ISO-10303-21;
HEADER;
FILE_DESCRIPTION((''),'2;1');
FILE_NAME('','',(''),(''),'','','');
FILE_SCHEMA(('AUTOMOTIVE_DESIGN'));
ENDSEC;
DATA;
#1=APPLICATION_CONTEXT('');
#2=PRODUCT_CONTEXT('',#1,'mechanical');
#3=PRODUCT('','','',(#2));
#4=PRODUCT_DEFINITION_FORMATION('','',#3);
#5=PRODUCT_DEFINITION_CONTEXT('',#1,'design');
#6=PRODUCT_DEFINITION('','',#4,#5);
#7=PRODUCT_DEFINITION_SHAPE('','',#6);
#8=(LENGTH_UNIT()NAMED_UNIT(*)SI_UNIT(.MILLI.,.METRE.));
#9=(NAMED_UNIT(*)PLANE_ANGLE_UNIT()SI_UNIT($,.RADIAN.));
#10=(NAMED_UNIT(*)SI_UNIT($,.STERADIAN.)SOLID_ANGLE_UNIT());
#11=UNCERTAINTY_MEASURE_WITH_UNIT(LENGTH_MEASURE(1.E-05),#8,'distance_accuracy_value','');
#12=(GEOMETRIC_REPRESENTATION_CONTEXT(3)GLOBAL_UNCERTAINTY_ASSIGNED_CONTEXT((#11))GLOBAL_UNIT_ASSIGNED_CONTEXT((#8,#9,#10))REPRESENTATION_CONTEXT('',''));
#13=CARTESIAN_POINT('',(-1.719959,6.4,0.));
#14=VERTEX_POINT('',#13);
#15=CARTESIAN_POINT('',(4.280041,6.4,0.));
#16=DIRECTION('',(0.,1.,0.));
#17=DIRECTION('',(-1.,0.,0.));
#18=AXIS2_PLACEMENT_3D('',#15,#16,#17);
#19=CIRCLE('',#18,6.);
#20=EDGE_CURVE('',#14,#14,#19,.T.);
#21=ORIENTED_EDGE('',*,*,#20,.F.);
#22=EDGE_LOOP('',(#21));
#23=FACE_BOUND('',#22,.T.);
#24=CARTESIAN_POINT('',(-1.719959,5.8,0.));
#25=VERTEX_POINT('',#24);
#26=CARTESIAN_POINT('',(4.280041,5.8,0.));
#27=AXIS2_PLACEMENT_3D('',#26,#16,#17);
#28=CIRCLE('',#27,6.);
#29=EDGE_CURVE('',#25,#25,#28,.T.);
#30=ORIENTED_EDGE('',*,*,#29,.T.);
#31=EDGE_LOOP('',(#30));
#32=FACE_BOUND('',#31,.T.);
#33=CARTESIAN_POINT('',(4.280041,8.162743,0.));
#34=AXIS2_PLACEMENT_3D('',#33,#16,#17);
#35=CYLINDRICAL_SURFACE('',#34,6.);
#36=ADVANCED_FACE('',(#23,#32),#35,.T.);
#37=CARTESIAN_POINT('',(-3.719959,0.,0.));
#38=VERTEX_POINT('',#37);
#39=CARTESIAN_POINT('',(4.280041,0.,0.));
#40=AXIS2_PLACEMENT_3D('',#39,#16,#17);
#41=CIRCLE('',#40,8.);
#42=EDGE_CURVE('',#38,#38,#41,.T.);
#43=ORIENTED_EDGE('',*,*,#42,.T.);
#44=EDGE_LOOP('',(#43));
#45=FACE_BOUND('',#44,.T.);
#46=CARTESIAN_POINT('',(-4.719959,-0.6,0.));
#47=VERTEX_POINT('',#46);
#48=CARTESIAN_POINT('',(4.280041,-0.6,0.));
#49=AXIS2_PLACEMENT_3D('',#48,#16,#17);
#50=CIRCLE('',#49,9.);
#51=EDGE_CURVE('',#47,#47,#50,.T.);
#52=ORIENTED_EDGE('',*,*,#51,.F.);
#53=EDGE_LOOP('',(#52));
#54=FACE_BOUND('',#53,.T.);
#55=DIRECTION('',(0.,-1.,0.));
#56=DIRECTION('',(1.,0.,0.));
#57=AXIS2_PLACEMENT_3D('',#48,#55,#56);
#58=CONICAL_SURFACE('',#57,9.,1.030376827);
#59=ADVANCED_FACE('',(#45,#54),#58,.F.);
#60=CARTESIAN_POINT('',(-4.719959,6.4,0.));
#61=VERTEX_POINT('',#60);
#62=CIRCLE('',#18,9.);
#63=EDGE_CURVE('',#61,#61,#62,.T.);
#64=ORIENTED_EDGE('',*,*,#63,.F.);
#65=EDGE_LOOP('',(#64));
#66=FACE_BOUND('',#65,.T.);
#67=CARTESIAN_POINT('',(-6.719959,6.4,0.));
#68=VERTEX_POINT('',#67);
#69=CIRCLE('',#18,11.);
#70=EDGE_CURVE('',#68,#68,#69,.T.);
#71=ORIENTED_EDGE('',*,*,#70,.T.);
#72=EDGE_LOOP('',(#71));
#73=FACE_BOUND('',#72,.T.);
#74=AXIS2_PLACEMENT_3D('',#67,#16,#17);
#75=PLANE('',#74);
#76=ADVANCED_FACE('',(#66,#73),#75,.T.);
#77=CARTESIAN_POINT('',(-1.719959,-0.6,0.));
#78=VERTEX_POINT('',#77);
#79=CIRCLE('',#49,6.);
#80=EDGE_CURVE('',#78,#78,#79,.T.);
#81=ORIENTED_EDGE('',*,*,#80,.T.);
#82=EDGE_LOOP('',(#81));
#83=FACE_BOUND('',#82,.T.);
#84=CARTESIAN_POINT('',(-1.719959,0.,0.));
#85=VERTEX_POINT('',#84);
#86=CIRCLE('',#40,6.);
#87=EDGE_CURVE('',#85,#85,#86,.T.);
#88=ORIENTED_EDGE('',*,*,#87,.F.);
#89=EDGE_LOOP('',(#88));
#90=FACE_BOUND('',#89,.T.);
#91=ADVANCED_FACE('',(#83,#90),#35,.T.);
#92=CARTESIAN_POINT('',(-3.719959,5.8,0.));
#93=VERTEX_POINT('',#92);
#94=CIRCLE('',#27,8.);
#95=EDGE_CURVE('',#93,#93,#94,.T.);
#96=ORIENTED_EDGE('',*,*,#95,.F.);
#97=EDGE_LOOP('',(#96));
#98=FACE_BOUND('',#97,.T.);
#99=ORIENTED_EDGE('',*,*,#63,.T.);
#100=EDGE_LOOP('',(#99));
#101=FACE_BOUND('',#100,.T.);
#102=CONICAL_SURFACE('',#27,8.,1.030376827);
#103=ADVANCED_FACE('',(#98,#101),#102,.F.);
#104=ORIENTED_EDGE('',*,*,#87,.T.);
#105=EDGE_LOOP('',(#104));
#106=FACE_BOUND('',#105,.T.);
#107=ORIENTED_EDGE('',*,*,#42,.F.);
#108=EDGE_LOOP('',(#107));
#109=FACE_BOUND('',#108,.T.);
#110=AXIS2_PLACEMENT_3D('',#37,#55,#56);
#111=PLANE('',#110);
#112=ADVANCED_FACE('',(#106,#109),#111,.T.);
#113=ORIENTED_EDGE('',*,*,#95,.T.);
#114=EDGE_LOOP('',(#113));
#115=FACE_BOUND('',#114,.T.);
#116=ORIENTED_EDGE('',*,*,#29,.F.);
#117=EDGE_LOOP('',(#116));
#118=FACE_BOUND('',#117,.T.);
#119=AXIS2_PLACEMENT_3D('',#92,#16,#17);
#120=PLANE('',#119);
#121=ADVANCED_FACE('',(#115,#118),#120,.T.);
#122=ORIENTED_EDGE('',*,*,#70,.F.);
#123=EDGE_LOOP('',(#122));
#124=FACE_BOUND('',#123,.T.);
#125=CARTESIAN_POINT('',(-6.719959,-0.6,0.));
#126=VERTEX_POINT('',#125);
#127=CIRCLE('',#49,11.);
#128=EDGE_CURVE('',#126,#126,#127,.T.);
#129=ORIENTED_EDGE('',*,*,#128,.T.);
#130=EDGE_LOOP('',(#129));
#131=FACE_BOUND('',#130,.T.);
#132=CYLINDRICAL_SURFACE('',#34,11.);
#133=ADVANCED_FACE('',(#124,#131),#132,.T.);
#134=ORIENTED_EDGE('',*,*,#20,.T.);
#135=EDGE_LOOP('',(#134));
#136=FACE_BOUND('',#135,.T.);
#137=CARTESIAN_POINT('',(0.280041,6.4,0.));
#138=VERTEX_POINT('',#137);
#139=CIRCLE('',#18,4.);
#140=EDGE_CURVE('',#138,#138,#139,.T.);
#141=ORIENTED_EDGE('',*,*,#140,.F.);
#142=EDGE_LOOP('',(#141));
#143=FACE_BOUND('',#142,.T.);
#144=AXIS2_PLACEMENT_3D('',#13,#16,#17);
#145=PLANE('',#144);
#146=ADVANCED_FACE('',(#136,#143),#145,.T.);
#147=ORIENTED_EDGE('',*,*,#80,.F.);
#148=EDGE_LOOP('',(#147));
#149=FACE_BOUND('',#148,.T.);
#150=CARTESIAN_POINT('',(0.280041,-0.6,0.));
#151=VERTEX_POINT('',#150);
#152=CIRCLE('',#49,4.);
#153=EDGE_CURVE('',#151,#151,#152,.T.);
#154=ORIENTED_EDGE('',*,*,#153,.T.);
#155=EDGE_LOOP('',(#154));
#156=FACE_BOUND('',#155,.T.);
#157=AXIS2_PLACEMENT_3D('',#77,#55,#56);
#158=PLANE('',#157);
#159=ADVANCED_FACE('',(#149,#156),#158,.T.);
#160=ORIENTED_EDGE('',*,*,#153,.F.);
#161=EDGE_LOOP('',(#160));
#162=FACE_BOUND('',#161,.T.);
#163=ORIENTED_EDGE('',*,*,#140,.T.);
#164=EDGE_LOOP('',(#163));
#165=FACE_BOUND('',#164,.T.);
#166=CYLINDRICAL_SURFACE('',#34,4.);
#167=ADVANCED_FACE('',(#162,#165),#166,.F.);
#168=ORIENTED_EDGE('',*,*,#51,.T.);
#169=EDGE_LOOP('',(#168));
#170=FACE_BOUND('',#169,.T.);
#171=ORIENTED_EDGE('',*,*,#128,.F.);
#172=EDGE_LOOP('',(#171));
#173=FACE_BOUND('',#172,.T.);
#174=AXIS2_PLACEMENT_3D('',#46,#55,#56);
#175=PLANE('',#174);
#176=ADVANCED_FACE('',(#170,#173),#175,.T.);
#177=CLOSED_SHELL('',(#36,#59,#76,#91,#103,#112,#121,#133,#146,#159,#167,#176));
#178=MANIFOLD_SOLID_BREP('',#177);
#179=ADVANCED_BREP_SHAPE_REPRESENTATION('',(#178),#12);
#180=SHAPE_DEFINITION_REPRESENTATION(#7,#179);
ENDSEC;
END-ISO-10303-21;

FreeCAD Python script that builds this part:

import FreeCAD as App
import Part
import Sketcher

doc = App.newDocument("Part")
body = doc.addObject("PartDesign::Body", "Body")

sketch1 = doc.addObject("Sketcher::SketchObject", "Sketch")
body.addObject(sketch1)
sketch1.AttachmentSupport = (doc.XY_Plane, [""])
sketch1.MapMode = "FlatFace"
sketch1.addGeometry(Part.LineSegment(App.Vector(-4.7, -0.6, 0), App.Vector(-3.7, 0, 0)), False)
sketch1.addGeometry(Part.LineSegment(App.Vector(-3.7, 0, 0), App.Vector(-1.7, 0, 0)), False)
sketch1.addGeometry(Part.LineSegment(App.Vector(-1.7, 0, 0), App.Vector(-1.7, -0.6, 0)), False)
sketch1.addGeometry(Part.LineSegment(App.Vector(-1.7, -0.6, 0), App.Vector(0.3, -0.6, 0)), False)
sketch1.addGeometry(Part.LineSegment(App.Vector(0.3, -0.6, 0), App.Vector(0.3, 6.4, 0)), False)
sketch1.addGeometry(Part.LineSegment(App.Vector(0.3, 6.4, 0), App.Vector(-1.7, 6.4, 0)), False)
sketch1.addGeometry(Part.LineSegment(App.Vector(-1.7, 6.4, 0), App.Vector(-1.7, 5.8, 0)), False)
sketch1.addGeometry(Part.LineSegment(App.Vector(-1.7, 5.8, 0), App.Vector(-3.7, 5.8, 0)), False)
sketch1.addGeometry(Part.LineSegment(App.Vector(-3.7, 5.8, 0), App.Vector(-4.7, 6.4, 0)), False)
sketch1.addGeometry(Part.LineSegment(App.Vector(-4.7, 6.4, 0), App.Vector(-6.7, 6.4, 0)), False)
sketch1.addGeometry(Part.LineSegment(App.Vector(-6.7, 6.4, 0), App.Vector(-6.7, -0.6, 0)), False)
sketch1.addGeometry(Part.LineSegment(App.Vector(-6.7, -0.6, 0), App.Vector(-4.7, -0.6, 0)), False)
sketch1.addGeometry(Part.LineSegment(App.Vector(4.3, 6.4, 0), App.Vector(4.3, -0.6, 0)), True)
sketch1.addConstraint(Sketcher.Constraint("Coincident", 0, 2, 1, 1))
sketch1.addConstraint(Sketcher.Constraint("Coincident", 1, 2, 2, 1))
sketch1.addConstraint(Sketcher.Constraint("Coincident", 2, 2, 3, 1))
sketch1.addConstraint(Sketcher.Constraint("Coincident", 3, 2, 4, 1))
sketch1.addConstraint(Sketcher.Constraint("Coincident", 4, 2, 5, 1))
sketch1.addConstraint(Sketcher.Constraint("Coincident", 5, 2, 6, 1))
sketch1.addConstraint(Sketcher.Constraint("Coincident", 6, 2, 7, 1))
sketch1.addConstraint(Sketcher.Constraint("Coincident", 7, 2, 8, 1))
sketch1.addConstraint(Sketcher.Constraint("Coincident", 8, 2, 9, 1))
sketch1.addConstraint(Sketcher.Constraint("Coincident", 9, 2, 10, 1))
sketch1.addConstraint(Sketcher.Constraint("Coincident", 10, 2, 11, 1))
sketch1.addConstraint(Sketcher.Constraint("Coincident", 11, 2, 0, 1))
sketch1.addConstraint(Sketcher.Constraint("Horizontal", 1))
sketch1.addConstraint(Sketcher.Constraint("Vertical", 2))
sketch1.addConstraint(Sketcher.Constraint("Horizontal", 3))
sketch1.addConstraint(Sketcher.Constraint("Vertical", 4))
sketch1.addConstraint(Sketcher.Constraint("Horizontal", 5))
sketch1.addConstraint(Sketcher.Constraint("Vertical", 6))
sketch1.addConstraint(Sketcher.Constraint("Horizontal", 7))
sketch1.addConstraint(Sketcher.Constraint("Horizontal", 9))
sketch1.addConstraint(Sketcher.Constraint("Vertical", 10))
sketch1.addConstraint(Sketcher.Constraint("Horizontal", 11))
sketch1.addConstraint(Sketcher.Constraint("Vertical", 12))
sketch1.addConstraint(Sketcher.Constraint("PointOnObject", 0, 2, -1))
sketch1.addConstraint(Sketcher.Constraint("Horizontal", 5, 2, 8, 2))
sketch1.addConstraint(Sketcher.Constraint("Horizontal", 3, 2, 10, 2))
sketch1.addConstraint(Sketcher.Constraint("Horizontal", 9, 2, 12, 1))
sketch1.addConstraint(Sketcher.Constraint("Horizontal", 11, 2, 12, 2))
sketch1.addConstraint(Sketcher.Constraint("Vertical", 2, 2, 5, 2))
sketch1.addConstraint(Sketcher.Constraint("Vertical", 0, 2, 7, 2))
sketch1.addConstraint(Sketcher.Constraint("Vertical", 8, 2, 11, 2))
sketch1.addConstraint(Sketcher.Constraint("Equal", 1, 3))
sketch1.addConstraint(Sketcher.Constraint("Equal", 7, 9))
sketch1.addConstraint(Sketcher.Constraint("Equal", 2, 6))
sketch1.addConstraint(Sketcher.Constraint("DistanceX", 1, 1, 1, 2, 2.0))
sketch1.addConstraint(Sketcher.Constraint("DistanceY", 4, 1, 4, 2, 7.0))
sketch1.addConstraint(Sketcher.Constraint("DistanceY", 2, 2, 2, 1, 0.6))
sketch1.addConstraint(Sketcher.Constraint("DistanceX", 8, 2, 7, 2, 1.0))
sketch1.addConstraint(Sketcher.Constraint("DistanceX", 4, 2, 12, 1, 4.0))
sketch1.addConstraint(Sketcher.Constraint("DistanceX", 0, 2, -1, 1, 3.719959))
revolution = doc.addObject("PartDesign::Revolution", "Revolution")
body.addObject(revolution)
revolution.Profile = sketch1
revolution.ReferenceAxis = (sketch1, ["Axis0"])
revolution.Angle = 360

doc.recompute()
